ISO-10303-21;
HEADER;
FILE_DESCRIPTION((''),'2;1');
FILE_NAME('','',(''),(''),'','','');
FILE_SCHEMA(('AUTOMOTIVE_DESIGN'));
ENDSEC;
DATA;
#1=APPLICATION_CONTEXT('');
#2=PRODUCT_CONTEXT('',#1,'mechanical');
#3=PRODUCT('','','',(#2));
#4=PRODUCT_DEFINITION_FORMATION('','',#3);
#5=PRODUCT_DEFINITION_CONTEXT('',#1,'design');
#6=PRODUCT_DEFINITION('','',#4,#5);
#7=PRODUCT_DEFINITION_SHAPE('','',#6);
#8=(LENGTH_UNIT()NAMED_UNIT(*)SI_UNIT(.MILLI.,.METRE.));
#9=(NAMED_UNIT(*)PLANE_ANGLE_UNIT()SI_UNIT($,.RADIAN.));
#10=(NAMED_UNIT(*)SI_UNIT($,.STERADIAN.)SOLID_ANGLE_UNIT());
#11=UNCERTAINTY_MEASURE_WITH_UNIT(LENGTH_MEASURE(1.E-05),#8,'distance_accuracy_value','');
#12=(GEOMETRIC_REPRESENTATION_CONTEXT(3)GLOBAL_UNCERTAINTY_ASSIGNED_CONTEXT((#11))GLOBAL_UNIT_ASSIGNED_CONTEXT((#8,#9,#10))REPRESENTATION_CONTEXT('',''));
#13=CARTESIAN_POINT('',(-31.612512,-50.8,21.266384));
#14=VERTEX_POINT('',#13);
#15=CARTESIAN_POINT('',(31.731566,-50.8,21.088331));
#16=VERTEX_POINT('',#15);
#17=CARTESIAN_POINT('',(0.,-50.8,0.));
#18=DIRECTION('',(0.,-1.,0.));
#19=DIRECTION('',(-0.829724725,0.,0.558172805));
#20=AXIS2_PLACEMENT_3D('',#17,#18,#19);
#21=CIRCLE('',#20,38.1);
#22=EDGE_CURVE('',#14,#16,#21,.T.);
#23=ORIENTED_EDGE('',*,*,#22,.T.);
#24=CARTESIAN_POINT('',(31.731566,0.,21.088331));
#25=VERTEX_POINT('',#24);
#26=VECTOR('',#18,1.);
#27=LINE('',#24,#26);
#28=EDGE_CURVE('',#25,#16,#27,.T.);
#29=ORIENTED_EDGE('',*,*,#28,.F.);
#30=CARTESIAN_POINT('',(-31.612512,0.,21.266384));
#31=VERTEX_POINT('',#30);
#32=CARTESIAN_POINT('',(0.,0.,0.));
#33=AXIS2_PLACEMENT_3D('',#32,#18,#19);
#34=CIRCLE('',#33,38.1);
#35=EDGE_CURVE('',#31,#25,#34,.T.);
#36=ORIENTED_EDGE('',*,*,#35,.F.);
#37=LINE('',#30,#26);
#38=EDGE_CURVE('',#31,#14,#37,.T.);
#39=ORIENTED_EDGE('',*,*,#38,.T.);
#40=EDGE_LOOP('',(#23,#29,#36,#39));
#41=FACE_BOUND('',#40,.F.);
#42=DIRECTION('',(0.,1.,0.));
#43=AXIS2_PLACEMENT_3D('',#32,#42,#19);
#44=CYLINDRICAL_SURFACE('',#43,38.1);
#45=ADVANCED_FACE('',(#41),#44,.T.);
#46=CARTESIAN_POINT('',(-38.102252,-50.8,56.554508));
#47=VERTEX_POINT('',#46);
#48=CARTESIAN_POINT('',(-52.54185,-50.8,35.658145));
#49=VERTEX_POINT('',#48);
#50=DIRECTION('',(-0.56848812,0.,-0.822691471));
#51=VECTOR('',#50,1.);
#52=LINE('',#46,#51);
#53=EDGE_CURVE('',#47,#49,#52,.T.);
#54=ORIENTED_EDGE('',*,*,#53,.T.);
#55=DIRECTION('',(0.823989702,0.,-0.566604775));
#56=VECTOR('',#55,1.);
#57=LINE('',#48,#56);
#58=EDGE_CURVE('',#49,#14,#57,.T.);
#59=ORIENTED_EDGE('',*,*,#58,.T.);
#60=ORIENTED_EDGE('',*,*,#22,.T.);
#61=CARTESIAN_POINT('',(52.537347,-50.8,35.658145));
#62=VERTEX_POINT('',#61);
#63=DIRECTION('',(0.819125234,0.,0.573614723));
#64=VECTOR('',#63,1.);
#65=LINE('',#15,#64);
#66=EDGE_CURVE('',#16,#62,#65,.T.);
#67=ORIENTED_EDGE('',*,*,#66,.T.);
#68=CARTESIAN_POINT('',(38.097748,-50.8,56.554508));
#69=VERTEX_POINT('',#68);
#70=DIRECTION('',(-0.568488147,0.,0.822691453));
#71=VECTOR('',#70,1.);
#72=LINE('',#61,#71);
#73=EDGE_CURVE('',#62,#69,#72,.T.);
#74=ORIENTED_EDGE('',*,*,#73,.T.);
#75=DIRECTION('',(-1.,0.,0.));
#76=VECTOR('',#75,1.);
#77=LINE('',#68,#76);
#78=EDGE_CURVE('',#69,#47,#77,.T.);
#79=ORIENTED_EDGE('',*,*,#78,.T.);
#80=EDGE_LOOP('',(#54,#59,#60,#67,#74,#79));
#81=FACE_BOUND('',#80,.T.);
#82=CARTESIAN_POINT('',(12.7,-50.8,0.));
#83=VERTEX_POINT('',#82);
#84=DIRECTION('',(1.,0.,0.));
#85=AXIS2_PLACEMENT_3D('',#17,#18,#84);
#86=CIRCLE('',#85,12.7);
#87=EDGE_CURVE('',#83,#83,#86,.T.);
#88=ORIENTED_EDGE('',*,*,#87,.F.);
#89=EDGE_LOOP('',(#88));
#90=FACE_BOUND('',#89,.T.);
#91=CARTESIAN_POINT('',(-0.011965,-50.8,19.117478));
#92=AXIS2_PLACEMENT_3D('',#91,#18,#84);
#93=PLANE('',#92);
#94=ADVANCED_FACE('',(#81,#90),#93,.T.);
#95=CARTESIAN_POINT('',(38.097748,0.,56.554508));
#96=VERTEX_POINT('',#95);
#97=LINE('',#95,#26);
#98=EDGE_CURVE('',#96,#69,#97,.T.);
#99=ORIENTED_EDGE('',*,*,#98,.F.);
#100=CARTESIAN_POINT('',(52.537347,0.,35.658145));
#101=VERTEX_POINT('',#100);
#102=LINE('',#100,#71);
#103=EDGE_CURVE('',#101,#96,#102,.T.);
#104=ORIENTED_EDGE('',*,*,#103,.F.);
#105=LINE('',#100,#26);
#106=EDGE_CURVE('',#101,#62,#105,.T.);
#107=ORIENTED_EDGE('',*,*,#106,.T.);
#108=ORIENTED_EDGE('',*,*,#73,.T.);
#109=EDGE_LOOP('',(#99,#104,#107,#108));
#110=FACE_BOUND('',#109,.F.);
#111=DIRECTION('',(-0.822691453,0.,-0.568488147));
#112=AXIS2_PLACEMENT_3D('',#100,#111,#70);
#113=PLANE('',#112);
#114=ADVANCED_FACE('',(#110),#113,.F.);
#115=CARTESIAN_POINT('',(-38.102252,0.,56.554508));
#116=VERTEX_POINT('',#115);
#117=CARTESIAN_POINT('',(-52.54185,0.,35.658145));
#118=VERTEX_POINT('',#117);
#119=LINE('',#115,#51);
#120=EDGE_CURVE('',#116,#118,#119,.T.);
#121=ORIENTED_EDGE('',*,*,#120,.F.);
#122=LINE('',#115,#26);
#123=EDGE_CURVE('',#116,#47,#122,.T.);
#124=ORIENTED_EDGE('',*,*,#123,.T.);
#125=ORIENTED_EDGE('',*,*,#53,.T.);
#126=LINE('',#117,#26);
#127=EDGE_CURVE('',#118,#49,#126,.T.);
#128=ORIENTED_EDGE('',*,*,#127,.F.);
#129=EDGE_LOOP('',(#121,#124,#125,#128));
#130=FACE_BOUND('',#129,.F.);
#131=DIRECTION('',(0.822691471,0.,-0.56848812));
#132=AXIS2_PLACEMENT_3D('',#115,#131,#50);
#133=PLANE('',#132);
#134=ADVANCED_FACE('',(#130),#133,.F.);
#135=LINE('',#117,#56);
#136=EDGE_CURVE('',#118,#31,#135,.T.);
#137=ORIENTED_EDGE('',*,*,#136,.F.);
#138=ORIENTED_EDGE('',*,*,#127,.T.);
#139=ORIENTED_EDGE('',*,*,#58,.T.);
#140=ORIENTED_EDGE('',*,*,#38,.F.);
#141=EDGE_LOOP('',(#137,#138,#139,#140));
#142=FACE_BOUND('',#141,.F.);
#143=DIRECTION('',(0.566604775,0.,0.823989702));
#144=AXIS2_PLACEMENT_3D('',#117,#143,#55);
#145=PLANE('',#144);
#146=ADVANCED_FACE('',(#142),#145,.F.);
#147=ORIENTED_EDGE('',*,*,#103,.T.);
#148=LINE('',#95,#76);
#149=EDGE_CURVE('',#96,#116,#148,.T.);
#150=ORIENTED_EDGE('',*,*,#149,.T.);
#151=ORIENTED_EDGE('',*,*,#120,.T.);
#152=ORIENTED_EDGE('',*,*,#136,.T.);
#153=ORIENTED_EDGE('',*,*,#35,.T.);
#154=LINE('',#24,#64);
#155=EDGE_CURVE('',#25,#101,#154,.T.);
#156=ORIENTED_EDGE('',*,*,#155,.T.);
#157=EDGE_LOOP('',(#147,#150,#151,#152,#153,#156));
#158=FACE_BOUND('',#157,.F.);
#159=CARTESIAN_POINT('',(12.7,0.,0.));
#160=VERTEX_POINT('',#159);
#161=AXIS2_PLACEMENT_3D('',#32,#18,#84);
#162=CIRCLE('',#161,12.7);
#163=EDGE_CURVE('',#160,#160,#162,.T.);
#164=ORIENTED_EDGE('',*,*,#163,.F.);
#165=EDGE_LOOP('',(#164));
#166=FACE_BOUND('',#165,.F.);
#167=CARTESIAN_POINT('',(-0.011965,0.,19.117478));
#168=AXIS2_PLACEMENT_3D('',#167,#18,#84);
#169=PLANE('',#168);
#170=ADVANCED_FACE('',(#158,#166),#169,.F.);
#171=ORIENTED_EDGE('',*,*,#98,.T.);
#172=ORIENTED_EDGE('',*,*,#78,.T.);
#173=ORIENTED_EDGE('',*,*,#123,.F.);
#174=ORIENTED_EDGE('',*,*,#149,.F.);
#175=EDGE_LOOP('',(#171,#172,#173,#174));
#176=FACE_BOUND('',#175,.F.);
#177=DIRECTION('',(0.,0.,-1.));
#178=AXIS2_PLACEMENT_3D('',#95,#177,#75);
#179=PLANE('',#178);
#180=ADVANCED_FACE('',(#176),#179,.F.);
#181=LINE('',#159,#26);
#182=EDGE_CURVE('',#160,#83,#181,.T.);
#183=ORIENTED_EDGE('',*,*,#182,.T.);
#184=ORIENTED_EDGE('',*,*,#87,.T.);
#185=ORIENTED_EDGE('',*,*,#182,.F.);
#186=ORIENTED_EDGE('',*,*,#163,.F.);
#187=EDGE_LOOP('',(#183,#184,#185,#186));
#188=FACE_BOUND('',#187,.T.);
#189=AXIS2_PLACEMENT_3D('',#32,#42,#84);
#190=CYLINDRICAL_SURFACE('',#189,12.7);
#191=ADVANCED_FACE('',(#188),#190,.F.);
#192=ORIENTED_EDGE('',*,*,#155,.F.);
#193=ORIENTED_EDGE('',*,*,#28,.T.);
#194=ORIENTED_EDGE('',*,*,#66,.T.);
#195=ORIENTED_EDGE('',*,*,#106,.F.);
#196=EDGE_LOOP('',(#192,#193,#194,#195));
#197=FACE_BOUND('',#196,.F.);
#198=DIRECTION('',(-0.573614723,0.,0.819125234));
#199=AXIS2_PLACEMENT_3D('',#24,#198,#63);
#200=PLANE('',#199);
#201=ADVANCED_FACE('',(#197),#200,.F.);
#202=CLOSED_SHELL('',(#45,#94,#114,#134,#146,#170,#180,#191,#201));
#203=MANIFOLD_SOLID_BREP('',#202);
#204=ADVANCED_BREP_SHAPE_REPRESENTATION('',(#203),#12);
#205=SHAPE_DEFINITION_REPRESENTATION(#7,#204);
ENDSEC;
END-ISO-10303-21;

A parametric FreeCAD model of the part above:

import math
import FreeCAD as App
import Part
import Sketcher
from FreeCAD import Vector
Q = App.Units.Quantity

doc = App.newDocument("Part")
body = doc.addObject("PartDesign::Body", "Body")

sketch1 = body.newObject("Sketcher::SketchObject", "Sketch")
sketch1.AttachmentSupport = (doc.getObject("XZ_Plane"), [""])
sketch1.MapMode = "FlatFace"
sketch1.addGeometry(Part.LineSegment(Vector(-53, 36, 0), Vector(-32, 21, 0)), False)
sketch1.addGeometry(Part.ArcOfCircle(Part.Circle(Vector(0, 0, 0), Vector(0, 0, 1), 38), math.radians(146), math.radians(394)), False)
sketch1.addGeometry(Part.LineSegment(Vector(32, 21, 0), Vector(53, 36, 0)), False)
sketch1.addGeometry(Part.LineSegment(Vector(53, 36, 0), Vector(38, 57, 0)), False)
sketch1.addGeometry(Part.LineSegment(Vector(38, 57, 0), Vector(-38, 57, 0)), False)
sketch1.addGeometry(Part.LineSegment(Vector(-38, 57, 0), Vector(-53, 36, 0)), False)
sketch1.addGeometry(Part.Circle(Vector(0, 0, 0), Vector(0, 0, 1), 13), False)
sketch1.addConstraint(Sketcher.Constraint("Coincident", 0, 2, 1, 1))
sketch1.addConstraint(Sketcher.Constraint("Coincident", 1, 2, 2, 1))
sketch1.addConstraint(Sketcher.Constraint("Coincident", 2, 2, 3, 1))
sketch1.addConstraint(Sketcher.Constraint("Coincident", 3, 2, 4, 1))
sketch1.addConstraint(Sketcher.Constraint("Coincident", 4, 2, 5, 1))
sketch1.addConstraint(Sketcher.Constraint("Coincident", 5, 2, 0, 1))
sketch1.addConstraint(Sketcher.Constraint("Horizontal", 4))
sketch1.addConstraint(Sketcher.Constraint("Coincident", 1, 3, -1, 1))
sketch1.addConstraint(Sketcher.Constraint("Coincident", 6, 3, -1, 1))
sketch1.addConstraint(Sketcher.Constraint("Horizontal", 2, 2, 5, 2))
sketch1.addConstraint(Sketcher.Constraint("Equal", 0, 2))
sketch1.addConstraint(Sketcher.Constraint("Equal", 2, 3))
sketch1.addConstraint(Sketcher.Constraint("Equal", 3, 5))
sketch1.addConstraint(Sketcher.Constraint("Diameter", 6, Q("1 in")))
sketch1.addConstraint(Sketcher.Constraint("Radius", 1, Q("1.5 in")))
sketch1.addConstraint(Sketcher.Constraint("DistanceX", 4, 2, 4, 1, Q("3 in")))
sketch1.addConstraint(Sketcher.Constraint("Distance", 0, Q("1 in")))
sketch1.addConstraint(Sketcher.Constraint("DistanceX", 3, 2, 2, 2, Q("14.439599 mm")))
sketch1.addConstraint(Sketcher.Constraint("DistanceX", 0, 2, -1, 1, Q("31.612512 mm")))
sketch1.addConstraint(Sketcher.Constraint("DistanceY", -1, 1, 1, 2, Q("21.088331 mm")))
pad1 = body.newObject("PartDesign::Pad", "Pad")
pad1.Profile = sketch1
pad1.Length = Q("2 in")

doc.recompute()
